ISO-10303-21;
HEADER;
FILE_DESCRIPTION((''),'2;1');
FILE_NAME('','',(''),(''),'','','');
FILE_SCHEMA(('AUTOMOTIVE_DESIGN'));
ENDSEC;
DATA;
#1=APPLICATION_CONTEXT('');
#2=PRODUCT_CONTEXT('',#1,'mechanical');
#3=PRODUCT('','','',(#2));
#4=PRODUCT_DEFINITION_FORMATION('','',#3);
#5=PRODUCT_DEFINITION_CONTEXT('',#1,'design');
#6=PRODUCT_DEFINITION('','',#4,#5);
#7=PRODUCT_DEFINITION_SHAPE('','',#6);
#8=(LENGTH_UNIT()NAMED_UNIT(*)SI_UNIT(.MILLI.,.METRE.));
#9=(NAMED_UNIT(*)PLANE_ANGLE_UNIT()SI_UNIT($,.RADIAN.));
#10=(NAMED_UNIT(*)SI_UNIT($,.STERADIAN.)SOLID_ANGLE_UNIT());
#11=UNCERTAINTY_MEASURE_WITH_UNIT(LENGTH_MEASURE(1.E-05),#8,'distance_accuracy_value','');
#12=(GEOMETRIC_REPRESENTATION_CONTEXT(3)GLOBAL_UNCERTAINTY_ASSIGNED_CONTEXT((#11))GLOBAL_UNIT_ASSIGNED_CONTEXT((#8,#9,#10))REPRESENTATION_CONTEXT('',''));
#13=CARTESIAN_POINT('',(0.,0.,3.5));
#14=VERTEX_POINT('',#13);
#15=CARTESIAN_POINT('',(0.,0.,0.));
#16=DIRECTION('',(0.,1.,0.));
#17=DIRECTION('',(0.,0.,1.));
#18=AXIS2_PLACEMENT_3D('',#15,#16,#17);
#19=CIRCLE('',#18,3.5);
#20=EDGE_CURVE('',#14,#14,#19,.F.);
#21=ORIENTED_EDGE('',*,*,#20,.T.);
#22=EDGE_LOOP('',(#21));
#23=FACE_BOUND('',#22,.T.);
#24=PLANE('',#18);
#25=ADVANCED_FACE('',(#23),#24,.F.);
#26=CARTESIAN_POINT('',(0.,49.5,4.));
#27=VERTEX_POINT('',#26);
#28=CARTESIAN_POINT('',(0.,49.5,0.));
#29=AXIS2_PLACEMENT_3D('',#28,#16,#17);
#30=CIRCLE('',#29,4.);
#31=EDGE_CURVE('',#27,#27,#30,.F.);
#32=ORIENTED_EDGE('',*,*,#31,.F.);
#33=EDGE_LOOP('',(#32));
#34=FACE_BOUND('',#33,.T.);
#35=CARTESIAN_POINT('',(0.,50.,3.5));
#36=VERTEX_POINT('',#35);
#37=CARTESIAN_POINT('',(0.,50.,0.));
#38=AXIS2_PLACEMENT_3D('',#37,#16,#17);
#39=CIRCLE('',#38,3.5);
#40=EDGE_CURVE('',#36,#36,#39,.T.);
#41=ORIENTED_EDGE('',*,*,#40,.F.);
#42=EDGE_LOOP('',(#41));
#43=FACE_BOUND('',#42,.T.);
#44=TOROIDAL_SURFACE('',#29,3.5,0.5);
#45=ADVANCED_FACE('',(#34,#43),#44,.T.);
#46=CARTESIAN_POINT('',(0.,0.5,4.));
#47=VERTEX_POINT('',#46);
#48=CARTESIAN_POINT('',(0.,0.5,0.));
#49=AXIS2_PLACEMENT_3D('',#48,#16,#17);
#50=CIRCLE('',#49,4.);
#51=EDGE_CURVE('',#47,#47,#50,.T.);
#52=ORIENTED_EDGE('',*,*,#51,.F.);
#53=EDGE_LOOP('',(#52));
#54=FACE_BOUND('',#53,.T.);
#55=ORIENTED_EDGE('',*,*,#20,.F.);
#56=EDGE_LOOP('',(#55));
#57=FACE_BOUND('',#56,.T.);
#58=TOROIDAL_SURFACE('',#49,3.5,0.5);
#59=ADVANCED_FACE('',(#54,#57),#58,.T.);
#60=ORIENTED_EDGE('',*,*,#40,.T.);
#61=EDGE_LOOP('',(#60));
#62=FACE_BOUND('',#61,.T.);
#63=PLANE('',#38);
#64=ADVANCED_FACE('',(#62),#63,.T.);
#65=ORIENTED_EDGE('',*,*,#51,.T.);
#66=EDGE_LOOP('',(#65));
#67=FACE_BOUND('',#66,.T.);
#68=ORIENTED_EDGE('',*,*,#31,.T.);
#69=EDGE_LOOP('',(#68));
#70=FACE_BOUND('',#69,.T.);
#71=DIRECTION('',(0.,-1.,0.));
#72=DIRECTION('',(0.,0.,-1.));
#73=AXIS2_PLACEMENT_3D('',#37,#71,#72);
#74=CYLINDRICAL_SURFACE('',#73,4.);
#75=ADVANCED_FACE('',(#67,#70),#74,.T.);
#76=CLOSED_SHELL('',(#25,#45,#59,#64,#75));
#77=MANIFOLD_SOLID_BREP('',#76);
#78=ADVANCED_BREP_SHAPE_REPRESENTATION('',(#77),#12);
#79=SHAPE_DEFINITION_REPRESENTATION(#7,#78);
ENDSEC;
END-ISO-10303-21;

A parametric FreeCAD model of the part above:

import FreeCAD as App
import Part
import Sketcher
from FreeCAD import Vector


def edges_at(feature, points):
    """Names of the edges that pass closest to the given points."""
    edges = feature.Shape.Edges
    near = lambda p: min(range(len(edges)), key=lambda i: edges[i].distToShape(Part.Vertex(*p))[0])
    return sorted({f"Edge{near(p) + 1}" for p in points})

doc = App.newDocument("Part")
body = doc.addObject("PartDesign::Body", "Body")

# Sketch on XZ plane
sketch1 = body.newObject("Sketcher::SketchObject", "Sketch")
sketch1.AttachmentSupport = (doc.getObject("XZ_Plane"), [""])
sketch1.MapMode = "FlatFace"
sketch1.addGeometry(Part.Circle(Vector(0, 0, 0), Vector(0, 0, 1), 4), False)
sketch1.addConstraint(Sketcher.Constraint("Coincident", 0, 3, -1, 1))
sketch1.addConstraint(Sketcher.Constraint("Diameter", 0, 8.0))
pad1 = body.newObject("PartDesign::Pad", "Pad")
pad1.Profile = sketch1
pad1.Length = 50
pad1.Reversed = True
doc.recompute()

fillet = body.newObject("PartDesign::Fillet", "Fillet")
fillet.Base = (pad1, edges_at(pad1, [(-4, 0, 0), (-4, 50, 0)]))
fillet.Radius = 0.5

doc.recompute()
